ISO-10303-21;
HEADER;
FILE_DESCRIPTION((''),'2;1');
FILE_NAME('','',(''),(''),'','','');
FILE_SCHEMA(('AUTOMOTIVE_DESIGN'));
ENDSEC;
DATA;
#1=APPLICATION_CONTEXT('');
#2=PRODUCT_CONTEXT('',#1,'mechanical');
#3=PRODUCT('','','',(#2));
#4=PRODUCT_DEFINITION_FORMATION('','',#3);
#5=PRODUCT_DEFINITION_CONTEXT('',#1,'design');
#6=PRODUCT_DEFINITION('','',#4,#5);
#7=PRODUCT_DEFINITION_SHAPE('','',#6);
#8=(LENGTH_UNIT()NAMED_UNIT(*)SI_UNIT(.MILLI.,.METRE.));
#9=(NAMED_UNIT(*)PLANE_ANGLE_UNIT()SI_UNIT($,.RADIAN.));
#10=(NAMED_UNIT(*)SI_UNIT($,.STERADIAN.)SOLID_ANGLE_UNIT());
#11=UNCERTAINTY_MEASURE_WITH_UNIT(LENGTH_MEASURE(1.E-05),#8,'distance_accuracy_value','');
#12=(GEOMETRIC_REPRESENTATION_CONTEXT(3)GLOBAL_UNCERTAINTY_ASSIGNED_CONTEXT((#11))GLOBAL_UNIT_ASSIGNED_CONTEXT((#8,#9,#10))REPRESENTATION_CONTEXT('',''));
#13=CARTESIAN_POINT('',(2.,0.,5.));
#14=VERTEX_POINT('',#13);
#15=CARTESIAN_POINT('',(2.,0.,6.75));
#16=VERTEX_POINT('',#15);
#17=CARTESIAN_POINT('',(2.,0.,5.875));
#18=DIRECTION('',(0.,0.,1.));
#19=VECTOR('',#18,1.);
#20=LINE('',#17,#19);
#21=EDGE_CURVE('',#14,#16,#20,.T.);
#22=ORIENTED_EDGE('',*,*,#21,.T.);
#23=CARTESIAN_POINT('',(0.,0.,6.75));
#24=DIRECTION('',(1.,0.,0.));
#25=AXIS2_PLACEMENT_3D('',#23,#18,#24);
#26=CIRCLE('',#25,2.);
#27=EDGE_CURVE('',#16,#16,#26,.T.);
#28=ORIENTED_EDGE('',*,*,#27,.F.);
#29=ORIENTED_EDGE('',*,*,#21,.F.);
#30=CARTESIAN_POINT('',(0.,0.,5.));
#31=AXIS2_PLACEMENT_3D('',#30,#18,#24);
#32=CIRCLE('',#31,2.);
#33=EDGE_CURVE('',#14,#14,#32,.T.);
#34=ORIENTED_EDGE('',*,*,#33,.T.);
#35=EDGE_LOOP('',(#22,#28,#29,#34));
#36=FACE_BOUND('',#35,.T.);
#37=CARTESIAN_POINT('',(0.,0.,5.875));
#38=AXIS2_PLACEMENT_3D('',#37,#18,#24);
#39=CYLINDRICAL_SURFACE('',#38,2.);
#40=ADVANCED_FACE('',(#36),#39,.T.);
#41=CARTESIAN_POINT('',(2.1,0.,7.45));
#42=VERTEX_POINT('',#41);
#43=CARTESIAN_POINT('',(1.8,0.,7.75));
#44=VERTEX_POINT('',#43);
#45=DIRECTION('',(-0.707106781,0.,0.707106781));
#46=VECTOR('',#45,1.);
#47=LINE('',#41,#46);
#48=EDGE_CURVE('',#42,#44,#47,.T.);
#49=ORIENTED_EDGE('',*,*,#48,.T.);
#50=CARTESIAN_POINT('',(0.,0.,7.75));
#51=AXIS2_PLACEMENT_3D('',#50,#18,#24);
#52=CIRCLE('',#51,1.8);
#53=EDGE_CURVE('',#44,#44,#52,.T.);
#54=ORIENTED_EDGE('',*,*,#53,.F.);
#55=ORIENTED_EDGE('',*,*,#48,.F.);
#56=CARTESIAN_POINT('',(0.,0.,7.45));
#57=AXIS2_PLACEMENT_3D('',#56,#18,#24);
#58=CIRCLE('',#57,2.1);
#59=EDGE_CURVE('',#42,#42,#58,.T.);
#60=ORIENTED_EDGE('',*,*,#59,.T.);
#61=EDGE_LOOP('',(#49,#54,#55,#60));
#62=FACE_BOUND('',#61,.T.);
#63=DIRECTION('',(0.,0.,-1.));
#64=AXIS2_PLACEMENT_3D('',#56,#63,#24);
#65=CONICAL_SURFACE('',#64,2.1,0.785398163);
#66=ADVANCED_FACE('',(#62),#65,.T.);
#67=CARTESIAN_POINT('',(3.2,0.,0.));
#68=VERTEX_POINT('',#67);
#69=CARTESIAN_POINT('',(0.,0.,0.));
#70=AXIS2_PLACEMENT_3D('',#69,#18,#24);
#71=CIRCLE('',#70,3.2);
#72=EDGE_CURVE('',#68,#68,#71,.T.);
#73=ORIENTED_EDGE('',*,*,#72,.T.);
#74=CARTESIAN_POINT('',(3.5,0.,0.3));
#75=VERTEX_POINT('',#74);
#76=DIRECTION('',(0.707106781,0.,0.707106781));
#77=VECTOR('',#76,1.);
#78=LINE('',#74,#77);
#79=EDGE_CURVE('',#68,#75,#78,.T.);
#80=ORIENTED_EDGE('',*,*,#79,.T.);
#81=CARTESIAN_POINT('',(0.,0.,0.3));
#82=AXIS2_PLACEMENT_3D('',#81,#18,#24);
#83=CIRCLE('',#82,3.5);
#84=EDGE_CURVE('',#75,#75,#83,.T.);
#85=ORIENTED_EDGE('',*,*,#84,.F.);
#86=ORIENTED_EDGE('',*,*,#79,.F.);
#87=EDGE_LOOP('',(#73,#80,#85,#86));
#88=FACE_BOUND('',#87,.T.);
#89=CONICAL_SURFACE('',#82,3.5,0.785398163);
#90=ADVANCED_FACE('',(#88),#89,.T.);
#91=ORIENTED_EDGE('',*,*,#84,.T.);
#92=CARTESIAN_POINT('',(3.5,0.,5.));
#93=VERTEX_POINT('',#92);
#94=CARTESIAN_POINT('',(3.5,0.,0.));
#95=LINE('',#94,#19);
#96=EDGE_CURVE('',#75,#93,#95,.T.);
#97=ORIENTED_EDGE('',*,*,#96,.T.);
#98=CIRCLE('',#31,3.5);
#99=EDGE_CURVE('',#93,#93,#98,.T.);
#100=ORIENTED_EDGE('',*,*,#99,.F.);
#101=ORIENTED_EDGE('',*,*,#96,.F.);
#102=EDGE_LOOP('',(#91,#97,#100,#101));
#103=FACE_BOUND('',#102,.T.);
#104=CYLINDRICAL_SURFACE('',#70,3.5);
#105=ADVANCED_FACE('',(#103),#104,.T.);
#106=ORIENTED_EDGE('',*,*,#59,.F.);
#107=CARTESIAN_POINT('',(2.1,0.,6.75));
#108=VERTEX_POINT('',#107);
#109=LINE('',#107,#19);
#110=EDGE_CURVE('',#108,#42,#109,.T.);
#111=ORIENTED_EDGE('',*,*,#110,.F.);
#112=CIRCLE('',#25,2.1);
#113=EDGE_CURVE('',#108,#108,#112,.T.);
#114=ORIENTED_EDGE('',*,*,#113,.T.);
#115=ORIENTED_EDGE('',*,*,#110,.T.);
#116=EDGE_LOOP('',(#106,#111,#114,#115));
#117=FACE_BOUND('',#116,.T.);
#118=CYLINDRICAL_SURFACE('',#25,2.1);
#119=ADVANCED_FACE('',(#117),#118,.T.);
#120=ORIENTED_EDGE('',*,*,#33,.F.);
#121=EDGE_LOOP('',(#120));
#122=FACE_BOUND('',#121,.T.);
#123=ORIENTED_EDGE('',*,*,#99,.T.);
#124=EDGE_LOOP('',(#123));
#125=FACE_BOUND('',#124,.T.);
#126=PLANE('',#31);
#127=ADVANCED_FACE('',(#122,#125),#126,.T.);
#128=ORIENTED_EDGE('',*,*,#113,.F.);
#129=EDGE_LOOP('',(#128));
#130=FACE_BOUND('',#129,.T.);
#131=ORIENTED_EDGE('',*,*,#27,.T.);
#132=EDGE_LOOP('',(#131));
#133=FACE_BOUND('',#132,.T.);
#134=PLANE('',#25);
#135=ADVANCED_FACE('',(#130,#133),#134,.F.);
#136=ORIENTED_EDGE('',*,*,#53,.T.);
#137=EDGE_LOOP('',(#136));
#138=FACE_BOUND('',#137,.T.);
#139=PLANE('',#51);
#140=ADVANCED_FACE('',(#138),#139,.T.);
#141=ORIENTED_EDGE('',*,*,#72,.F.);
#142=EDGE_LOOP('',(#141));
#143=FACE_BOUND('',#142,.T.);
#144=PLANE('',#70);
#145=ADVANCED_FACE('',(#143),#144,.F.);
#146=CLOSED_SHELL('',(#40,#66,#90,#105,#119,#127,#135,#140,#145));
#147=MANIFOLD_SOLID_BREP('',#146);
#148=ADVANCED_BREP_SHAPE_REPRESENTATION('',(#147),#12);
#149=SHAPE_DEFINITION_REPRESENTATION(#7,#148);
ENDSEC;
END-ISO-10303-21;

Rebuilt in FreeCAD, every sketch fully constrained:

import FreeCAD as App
import Part
import Sketcher
from FreeCAD import Vector


def edges_at(feature, points):
    """Names of the edges that pass closest to the given points."""
    edges = feature.Shape.Edges
    near = lambda p: min(range(len(edges)), key=lambda i: edges[i].distToShape(Part.Vertex(*p))[0])
    return sorted({f"Edge{near(p) + 1}" for p in points})

doc = App.newDocument("Part")
body = doc.addObject("PartDesign::Body", "Body")

# Sketch on XZ plane
sketch1 = body.newObject("Sketcher::SketchObject", "Sketch")
sketch1.AttachmentSupport = (doc.getObject("XZ_Plane"), [""])
sketch1.MapMode = "FlatFace"
sketch1.addGeometry([
    Part.LineSegment(Vector(0, 0, 0), Vector(3.5, 0, 0)),  # 0
    Part.LineSegment(Vector(3.5, 0, 0), Vector(3.5, 5, 0)),  # 1
    Part.LineSegment(Vector(3.5, 5, 0), Vector(2, 5, 0)),  # 2
    Part.LineSegment(Vector(2, 5, 0), Vector(2, 6.75, 0)),  # 3
    Part.LineSegment(Vector(2, 6.75, 0), Vector(2.1, 6.75, 0)),  # 4
    Part.LineSegment(Vector(2.1, 6.75, 0), Vector(2.1, 7.75, 0)),  # 5
    Part.LineSegment(Vector(2.1, 7.75, 0), Vector(0, 7.75, 0)),  # 6
    Part.LineSegment(Vector(0, 7.75, 0), Vector(0, 0, 0)),  # 7
], False)
sketch1.addConstraint([
    Sketcher.Constraint("Coincident", 0, 2, 1, 1),
    Sketcher.Constraint("Coincident", 1, 2, 2, 1),
    Sketcher.Constraint("Coincident", 2, 2, 3, 1),
    Sketcher.Constraint("Coincident", 3, 2, 4, 1),
    Sketcher.Constraint("Coincident", 4, 2, 5, 1),
    Sketcher.Constraint("Coincident", 5, 2, 6, 1),
    Sketcher.Constraint("Coincident", 6, 2, 7, 1),
    Sketcher.Constraint("Coincident", 7, 2, 0, 1),
    Sketcher.Constraint("Horizontal", 0),
    Sketcher.Constraint("Vertical", 1),
    Sketcher.Constraint("Horizontal", 2),
    Sketcher.Constraint("Vertical", 3),
    Sketcher.Constraint("Horizontal", 4),
    Sketcher.Constraint("Vertical", 5),
    Sketcher.Constraint("Horizontal", 6),
    Sketcher.Constraint("Vertical", 7),
    Sketcher.Constraint("Coincident", 7, 2, -1, 1),
    Sketcher.Constraint("DistanceY", 1, 1, 1, 2, 5.0),
    Sketcher.Constraint("DistanceY", 5, 1, 5, 2, 1.0),
    Sketcher.Constraint("DistanceX", 0, 1, 0, 2, 3.5),
    Sketcher.Constraint("DistanceX", 2, 2, 2, 1, 1.5),
    Sketcher.Constraint("DistanceX", 4, 1, 4, 2, 0.1),
    Sketcher.Constraint("DistanceY", 3, 1, 3, 2, 1.75),
])
revolution = body.newObject("PartDesign::Revolution", "Revolution")
revolution.Profile = sketch1
revolution.ReferenceAxis = (sketch1, ["V_Axis"])
revolution.Angle = 360
doc.recompute()

chamfer = body.newObject("PartDesign::Chamfer", "Chamfer")
chamfer.Base = (revolution, edges_at(revolution, [(-2.1, 0, 7.75), (-3.5, 0, 0)]))
chamfer.Size = 0.3

doc.recompute()
